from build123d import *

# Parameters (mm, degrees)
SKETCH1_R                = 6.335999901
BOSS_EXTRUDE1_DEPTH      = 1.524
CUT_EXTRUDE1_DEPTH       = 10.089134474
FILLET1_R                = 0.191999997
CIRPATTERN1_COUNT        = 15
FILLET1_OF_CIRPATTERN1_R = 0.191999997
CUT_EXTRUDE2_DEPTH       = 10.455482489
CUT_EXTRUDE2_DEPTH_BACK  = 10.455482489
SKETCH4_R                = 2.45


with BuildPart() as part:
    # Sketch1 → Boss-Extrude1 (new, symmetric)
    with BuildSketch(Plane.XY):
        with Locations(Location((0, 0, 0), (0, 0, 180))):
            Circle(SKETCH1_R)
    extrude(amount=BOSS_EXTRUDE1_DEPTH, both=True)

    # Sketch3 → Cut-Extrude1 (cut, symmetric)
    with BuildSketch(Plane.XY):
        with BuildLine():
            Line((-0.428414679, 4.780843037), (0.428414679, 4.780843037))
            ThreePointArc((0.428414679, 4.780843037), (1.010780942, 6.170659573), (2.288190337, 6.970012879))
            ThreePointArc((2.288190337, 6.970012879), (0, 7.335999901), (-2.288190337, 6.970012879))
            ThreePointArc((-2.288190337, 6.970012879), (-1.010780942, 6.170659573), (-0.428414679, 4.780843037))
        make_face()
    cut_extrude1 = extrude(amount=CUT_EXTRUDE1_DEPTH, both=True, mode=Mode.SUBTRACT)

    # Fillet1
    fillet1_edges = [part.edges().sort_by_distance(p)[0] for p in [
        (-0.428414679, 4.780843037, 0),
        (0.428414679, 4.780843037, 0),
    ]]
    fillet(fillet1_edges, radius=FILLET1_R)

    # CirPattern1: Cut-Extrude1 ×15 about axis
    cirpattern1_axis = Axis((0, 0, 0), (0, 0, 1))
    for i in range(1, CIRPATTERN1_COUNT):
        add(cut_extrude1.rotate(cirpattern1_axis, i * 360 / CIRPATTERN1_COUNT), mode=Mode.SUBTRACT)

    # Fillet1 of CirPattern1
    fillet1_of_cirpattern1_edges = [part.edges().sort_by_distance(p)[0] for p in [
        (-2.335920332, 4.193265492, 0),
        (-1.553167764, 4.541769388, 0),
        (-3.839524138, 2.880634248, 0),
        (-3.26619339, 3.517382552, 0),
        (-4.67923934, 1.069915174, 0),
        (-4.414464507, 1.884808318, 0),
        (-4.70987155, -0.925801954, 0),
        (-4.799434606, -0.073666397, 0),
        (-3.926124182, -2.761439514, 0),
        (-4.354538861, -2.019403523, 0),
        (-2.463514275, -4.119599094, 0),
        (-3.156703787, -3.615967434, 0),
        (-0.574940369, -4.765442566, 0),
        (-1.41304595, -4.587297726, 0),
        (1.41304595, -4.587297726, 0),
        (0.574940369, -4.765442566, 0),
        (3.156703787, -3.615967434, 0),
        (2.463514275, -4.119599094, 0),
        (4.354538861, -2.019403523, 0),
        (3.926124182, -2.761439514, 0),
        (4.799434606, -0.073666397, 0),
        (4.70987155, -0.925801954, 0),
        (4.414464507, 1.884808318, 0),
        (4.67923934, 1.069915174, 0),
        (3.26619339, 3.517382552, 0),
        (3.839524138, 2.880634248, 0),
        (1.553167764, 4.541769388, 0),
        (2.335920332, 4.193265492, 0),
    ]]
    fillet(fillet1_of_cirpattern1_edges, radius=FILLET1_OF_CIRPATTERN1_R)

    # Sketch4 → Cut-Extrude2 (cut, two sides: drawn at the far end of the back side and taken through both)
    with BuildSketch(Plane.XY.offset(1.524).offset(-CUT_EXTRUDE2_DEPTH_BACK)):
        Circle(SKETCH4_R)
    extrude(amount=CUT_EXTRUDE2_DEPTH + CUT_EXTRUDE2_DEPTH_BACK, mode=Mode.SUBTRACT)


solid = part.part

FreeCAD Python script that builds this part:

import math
import FreeCAD as App
import Part
import Sketcher
from FreeCAD import Vector
Q = App.Units.Quantity


def edges_at(feature, points):
    """Names of the edges that pass closest to the given points."""
    edges = feature.Shape.Edges
    near = lambda p: min(range(len(edges)), key=lambda i: edges[i].distToShape(Part.Vertex(*p))[0])
    return sorted({f"Edge{near(p) + 1}" for p in points})

doc = App.newDocument("Part")
body = doc.addObject("PartDesign::Body", "Body")

sketch1 = body.newObject("Sketcher::SketchObject", "Sketch")
sketch1.AttachmentSupport = (doc.getObject("XY_Plane"), [""])
sketch1.MapMode = "FlatFace"
sketch1.addGeometry(Part.Circle(Vector(0, 0, 0), Vector(0, 0, 1), 6), False)
sketch1.addConstraint(Sketcher.Constraint("Coincident", 0, 3, -1, 1))
sketch1.addConstraint(Sketcher.Constraint("Diameter", 0, Q("12.672 mm")))
pad1 = body.newObject("PartDesign::Pad", "Pad")
pad1.Profile = sketch1
pad1.Length = 3.048
pad1.Midplane = True

sketch2 = body.newObject("Sketcher::SketchObject", "Sketch001")
sketch2.AttachmentSupport = (doc.getObject("XY_Plane"), [""])
sketch2.MapMode = "FlatFace"
sketch2.addGeometry(Part.LineSegment(Vector(-0.4, 4.8, 0), Vector(0.4, 4.8, 0)), False)
sketch2.addGeometry(Part.ArcOfCircle(Part.Circle(Vector(2.9, 4.6, 0), Vector(0, 0, 1), 2.5), math.radians(104), math.radians(175)), False)
sketch2.addGeometry(Part.ArcOfCircle(Part.Circle(Vector(0, 0, 0), Vector(0, 0, 1), 7.3), math.radians(72), math.radians(108)), False)
sketch2.addGeometry(Part.ArcOfCircle(Part.Circle(Vector(-2.9, 4.6, 0), Vector(0, 0, 1), 2.5), math.radians(5), math.radians(76)), False)
sketch2.addConstraint(Sketcher.Constraint("Coincident", 0, 2, 1, 2))
sketch2.addConstraint(Sketcher.Constraint("Coincident", 1, 1, 2, 1))
sketch2.addConstraint(Sketcher.Constraint("Coincident", 2, 2, 3, 2))
sketch2.addConstraint(Sketcher.Constraint("Coincident", 3, 1, 0, 1))
sketch2.addConstraint(Sketcher.Constraint("Horizontal", 0))
sketch2.addConstraint(Sketcher.Constraint("Coincident", 2, 3, -1, 1))
sketch2.addConstraint(Sketcher.Constraint("Equal", 1, 3))
sketch2.addConstraint(Sketcher.Constraint("Symmetric", 1, 3, 3, 3, -2))
sketch2.addConstraint(Sketcher.Constraint("Radius", 2, Q("7.336 mm")))
sketch2.addConstraint(Sketcher.Constraint("Radius", 1, Q("2.489865 mm")))
sketch2.addConstraint(Sketcher.Constraint("DistanceX", 0, 1, 0, 2, Q("0.856829 mm")))
sketch2.addConstraint(Sketcher.Constraint("DistanceX", -1, 1, 1, 1, Q("2.28819 mm")))
sketch2.addConstraint(Sketcher.Constraint("DistanceX", 0, 2, 1, 3, Q("2.479928 mm")))
pocket1 = body.newObject("PartDesign::Pocket", "Pocket")
pocket1.Profile = sketch2
pocket1.Length = 20.178269
pocket1.Midplane = True
doc.recompute()

fillet = body.newObject("PartDesign::Fillet", "Fillet")
fillet.Base = (pocket1, edges_at(pocket1, [(-0.428, 4.781, 0), (0.428, 4.781, 0)]))
fillet.Radius = 0.192
doc.recompute()

polarpattern = body.newObject("PartDesign::PolarPattern", "PolarPattern")
polarpattern.Originals = [pocket1]
polarpattern.Axis = (doc.getObject("Z_Axis"), [""])
polarpattern.Angle = 360
polarpattern.Occurrences = 15
body.Tip = polarpattern
doc.recompute()

fillet2 = body.newObject("PartDesign::Fillet", "Fillet001")
fillet2.Base = (polarpattern, edges_at(polarpattern, [
    (-2.336, 4.193, 0),
    (-1.553, 4.542, 0),
    (-3.84, 2.881, 0),
    (-3.266, 3.517, 0),
    (-4.679, 1.07, 0),
    (-4.414, 1.885, 0),
    (-4.71, -0.926, 0),
    (-4.799, -0.074, 0),
    (-3.926, -2.761, 0),
    (-4.355, -2.019, 0),
    (-2.464, -4.12, 0),
    (-3.157, -3.616, 0),
    (-0.575, -4.765, 0),
    (-1.413, -4.587, 0),
    (1.413, -4.587, 0),
    (0.575, -4.765, 0),
    (3.157, -3.616, 0),
    (2.464, -4.12, 0),
    (4.355, -2.019, 0),
    (3.926, -2.761, 0),
    (4.799, -0.074, 0),
    (4.71, -0.926, 0),
    (4.414, 1.885, 0),
    (4.679, 1.07, 0),
    (3.266, 3.517, 0),
    (3.84, 2.881, 0),
    (1.553, 4.542, 0),
    (2.336, 4.193, 0),
]))
fillet2.Radius = 0.192

sketch3 = body.newObject("Sketcher::SketchObject", "Sketch002")
sketch3.AttachmentSupport = (doc.getObject("XY_Plane"), [""])
sketch3.MapMode = "FlatFace"
sketch3.AttachmentOffset = App.Placement(Vector(0, 0, 1.524), App.Rotation())
sketch3.addGeometry(Part.Circle(Vector(0, 0, 0), Vector(0, 0, 1), 2.5), False)
sketch3.addConstraint(Sketcher.Constraint("Coincident", 0, 3, -1, 1))
sketch3.addConstraint(Sketcher.Constraint("Diameter", 0, Q("4.9 mm")))
pocket2 = body.newObject("PartDesign::Pocket", "Pocket001")
pocket2.Profile = sketch3
pocket2.Type = "ThroughAll"
pocket2.Midplane = True

doc.recompute()
